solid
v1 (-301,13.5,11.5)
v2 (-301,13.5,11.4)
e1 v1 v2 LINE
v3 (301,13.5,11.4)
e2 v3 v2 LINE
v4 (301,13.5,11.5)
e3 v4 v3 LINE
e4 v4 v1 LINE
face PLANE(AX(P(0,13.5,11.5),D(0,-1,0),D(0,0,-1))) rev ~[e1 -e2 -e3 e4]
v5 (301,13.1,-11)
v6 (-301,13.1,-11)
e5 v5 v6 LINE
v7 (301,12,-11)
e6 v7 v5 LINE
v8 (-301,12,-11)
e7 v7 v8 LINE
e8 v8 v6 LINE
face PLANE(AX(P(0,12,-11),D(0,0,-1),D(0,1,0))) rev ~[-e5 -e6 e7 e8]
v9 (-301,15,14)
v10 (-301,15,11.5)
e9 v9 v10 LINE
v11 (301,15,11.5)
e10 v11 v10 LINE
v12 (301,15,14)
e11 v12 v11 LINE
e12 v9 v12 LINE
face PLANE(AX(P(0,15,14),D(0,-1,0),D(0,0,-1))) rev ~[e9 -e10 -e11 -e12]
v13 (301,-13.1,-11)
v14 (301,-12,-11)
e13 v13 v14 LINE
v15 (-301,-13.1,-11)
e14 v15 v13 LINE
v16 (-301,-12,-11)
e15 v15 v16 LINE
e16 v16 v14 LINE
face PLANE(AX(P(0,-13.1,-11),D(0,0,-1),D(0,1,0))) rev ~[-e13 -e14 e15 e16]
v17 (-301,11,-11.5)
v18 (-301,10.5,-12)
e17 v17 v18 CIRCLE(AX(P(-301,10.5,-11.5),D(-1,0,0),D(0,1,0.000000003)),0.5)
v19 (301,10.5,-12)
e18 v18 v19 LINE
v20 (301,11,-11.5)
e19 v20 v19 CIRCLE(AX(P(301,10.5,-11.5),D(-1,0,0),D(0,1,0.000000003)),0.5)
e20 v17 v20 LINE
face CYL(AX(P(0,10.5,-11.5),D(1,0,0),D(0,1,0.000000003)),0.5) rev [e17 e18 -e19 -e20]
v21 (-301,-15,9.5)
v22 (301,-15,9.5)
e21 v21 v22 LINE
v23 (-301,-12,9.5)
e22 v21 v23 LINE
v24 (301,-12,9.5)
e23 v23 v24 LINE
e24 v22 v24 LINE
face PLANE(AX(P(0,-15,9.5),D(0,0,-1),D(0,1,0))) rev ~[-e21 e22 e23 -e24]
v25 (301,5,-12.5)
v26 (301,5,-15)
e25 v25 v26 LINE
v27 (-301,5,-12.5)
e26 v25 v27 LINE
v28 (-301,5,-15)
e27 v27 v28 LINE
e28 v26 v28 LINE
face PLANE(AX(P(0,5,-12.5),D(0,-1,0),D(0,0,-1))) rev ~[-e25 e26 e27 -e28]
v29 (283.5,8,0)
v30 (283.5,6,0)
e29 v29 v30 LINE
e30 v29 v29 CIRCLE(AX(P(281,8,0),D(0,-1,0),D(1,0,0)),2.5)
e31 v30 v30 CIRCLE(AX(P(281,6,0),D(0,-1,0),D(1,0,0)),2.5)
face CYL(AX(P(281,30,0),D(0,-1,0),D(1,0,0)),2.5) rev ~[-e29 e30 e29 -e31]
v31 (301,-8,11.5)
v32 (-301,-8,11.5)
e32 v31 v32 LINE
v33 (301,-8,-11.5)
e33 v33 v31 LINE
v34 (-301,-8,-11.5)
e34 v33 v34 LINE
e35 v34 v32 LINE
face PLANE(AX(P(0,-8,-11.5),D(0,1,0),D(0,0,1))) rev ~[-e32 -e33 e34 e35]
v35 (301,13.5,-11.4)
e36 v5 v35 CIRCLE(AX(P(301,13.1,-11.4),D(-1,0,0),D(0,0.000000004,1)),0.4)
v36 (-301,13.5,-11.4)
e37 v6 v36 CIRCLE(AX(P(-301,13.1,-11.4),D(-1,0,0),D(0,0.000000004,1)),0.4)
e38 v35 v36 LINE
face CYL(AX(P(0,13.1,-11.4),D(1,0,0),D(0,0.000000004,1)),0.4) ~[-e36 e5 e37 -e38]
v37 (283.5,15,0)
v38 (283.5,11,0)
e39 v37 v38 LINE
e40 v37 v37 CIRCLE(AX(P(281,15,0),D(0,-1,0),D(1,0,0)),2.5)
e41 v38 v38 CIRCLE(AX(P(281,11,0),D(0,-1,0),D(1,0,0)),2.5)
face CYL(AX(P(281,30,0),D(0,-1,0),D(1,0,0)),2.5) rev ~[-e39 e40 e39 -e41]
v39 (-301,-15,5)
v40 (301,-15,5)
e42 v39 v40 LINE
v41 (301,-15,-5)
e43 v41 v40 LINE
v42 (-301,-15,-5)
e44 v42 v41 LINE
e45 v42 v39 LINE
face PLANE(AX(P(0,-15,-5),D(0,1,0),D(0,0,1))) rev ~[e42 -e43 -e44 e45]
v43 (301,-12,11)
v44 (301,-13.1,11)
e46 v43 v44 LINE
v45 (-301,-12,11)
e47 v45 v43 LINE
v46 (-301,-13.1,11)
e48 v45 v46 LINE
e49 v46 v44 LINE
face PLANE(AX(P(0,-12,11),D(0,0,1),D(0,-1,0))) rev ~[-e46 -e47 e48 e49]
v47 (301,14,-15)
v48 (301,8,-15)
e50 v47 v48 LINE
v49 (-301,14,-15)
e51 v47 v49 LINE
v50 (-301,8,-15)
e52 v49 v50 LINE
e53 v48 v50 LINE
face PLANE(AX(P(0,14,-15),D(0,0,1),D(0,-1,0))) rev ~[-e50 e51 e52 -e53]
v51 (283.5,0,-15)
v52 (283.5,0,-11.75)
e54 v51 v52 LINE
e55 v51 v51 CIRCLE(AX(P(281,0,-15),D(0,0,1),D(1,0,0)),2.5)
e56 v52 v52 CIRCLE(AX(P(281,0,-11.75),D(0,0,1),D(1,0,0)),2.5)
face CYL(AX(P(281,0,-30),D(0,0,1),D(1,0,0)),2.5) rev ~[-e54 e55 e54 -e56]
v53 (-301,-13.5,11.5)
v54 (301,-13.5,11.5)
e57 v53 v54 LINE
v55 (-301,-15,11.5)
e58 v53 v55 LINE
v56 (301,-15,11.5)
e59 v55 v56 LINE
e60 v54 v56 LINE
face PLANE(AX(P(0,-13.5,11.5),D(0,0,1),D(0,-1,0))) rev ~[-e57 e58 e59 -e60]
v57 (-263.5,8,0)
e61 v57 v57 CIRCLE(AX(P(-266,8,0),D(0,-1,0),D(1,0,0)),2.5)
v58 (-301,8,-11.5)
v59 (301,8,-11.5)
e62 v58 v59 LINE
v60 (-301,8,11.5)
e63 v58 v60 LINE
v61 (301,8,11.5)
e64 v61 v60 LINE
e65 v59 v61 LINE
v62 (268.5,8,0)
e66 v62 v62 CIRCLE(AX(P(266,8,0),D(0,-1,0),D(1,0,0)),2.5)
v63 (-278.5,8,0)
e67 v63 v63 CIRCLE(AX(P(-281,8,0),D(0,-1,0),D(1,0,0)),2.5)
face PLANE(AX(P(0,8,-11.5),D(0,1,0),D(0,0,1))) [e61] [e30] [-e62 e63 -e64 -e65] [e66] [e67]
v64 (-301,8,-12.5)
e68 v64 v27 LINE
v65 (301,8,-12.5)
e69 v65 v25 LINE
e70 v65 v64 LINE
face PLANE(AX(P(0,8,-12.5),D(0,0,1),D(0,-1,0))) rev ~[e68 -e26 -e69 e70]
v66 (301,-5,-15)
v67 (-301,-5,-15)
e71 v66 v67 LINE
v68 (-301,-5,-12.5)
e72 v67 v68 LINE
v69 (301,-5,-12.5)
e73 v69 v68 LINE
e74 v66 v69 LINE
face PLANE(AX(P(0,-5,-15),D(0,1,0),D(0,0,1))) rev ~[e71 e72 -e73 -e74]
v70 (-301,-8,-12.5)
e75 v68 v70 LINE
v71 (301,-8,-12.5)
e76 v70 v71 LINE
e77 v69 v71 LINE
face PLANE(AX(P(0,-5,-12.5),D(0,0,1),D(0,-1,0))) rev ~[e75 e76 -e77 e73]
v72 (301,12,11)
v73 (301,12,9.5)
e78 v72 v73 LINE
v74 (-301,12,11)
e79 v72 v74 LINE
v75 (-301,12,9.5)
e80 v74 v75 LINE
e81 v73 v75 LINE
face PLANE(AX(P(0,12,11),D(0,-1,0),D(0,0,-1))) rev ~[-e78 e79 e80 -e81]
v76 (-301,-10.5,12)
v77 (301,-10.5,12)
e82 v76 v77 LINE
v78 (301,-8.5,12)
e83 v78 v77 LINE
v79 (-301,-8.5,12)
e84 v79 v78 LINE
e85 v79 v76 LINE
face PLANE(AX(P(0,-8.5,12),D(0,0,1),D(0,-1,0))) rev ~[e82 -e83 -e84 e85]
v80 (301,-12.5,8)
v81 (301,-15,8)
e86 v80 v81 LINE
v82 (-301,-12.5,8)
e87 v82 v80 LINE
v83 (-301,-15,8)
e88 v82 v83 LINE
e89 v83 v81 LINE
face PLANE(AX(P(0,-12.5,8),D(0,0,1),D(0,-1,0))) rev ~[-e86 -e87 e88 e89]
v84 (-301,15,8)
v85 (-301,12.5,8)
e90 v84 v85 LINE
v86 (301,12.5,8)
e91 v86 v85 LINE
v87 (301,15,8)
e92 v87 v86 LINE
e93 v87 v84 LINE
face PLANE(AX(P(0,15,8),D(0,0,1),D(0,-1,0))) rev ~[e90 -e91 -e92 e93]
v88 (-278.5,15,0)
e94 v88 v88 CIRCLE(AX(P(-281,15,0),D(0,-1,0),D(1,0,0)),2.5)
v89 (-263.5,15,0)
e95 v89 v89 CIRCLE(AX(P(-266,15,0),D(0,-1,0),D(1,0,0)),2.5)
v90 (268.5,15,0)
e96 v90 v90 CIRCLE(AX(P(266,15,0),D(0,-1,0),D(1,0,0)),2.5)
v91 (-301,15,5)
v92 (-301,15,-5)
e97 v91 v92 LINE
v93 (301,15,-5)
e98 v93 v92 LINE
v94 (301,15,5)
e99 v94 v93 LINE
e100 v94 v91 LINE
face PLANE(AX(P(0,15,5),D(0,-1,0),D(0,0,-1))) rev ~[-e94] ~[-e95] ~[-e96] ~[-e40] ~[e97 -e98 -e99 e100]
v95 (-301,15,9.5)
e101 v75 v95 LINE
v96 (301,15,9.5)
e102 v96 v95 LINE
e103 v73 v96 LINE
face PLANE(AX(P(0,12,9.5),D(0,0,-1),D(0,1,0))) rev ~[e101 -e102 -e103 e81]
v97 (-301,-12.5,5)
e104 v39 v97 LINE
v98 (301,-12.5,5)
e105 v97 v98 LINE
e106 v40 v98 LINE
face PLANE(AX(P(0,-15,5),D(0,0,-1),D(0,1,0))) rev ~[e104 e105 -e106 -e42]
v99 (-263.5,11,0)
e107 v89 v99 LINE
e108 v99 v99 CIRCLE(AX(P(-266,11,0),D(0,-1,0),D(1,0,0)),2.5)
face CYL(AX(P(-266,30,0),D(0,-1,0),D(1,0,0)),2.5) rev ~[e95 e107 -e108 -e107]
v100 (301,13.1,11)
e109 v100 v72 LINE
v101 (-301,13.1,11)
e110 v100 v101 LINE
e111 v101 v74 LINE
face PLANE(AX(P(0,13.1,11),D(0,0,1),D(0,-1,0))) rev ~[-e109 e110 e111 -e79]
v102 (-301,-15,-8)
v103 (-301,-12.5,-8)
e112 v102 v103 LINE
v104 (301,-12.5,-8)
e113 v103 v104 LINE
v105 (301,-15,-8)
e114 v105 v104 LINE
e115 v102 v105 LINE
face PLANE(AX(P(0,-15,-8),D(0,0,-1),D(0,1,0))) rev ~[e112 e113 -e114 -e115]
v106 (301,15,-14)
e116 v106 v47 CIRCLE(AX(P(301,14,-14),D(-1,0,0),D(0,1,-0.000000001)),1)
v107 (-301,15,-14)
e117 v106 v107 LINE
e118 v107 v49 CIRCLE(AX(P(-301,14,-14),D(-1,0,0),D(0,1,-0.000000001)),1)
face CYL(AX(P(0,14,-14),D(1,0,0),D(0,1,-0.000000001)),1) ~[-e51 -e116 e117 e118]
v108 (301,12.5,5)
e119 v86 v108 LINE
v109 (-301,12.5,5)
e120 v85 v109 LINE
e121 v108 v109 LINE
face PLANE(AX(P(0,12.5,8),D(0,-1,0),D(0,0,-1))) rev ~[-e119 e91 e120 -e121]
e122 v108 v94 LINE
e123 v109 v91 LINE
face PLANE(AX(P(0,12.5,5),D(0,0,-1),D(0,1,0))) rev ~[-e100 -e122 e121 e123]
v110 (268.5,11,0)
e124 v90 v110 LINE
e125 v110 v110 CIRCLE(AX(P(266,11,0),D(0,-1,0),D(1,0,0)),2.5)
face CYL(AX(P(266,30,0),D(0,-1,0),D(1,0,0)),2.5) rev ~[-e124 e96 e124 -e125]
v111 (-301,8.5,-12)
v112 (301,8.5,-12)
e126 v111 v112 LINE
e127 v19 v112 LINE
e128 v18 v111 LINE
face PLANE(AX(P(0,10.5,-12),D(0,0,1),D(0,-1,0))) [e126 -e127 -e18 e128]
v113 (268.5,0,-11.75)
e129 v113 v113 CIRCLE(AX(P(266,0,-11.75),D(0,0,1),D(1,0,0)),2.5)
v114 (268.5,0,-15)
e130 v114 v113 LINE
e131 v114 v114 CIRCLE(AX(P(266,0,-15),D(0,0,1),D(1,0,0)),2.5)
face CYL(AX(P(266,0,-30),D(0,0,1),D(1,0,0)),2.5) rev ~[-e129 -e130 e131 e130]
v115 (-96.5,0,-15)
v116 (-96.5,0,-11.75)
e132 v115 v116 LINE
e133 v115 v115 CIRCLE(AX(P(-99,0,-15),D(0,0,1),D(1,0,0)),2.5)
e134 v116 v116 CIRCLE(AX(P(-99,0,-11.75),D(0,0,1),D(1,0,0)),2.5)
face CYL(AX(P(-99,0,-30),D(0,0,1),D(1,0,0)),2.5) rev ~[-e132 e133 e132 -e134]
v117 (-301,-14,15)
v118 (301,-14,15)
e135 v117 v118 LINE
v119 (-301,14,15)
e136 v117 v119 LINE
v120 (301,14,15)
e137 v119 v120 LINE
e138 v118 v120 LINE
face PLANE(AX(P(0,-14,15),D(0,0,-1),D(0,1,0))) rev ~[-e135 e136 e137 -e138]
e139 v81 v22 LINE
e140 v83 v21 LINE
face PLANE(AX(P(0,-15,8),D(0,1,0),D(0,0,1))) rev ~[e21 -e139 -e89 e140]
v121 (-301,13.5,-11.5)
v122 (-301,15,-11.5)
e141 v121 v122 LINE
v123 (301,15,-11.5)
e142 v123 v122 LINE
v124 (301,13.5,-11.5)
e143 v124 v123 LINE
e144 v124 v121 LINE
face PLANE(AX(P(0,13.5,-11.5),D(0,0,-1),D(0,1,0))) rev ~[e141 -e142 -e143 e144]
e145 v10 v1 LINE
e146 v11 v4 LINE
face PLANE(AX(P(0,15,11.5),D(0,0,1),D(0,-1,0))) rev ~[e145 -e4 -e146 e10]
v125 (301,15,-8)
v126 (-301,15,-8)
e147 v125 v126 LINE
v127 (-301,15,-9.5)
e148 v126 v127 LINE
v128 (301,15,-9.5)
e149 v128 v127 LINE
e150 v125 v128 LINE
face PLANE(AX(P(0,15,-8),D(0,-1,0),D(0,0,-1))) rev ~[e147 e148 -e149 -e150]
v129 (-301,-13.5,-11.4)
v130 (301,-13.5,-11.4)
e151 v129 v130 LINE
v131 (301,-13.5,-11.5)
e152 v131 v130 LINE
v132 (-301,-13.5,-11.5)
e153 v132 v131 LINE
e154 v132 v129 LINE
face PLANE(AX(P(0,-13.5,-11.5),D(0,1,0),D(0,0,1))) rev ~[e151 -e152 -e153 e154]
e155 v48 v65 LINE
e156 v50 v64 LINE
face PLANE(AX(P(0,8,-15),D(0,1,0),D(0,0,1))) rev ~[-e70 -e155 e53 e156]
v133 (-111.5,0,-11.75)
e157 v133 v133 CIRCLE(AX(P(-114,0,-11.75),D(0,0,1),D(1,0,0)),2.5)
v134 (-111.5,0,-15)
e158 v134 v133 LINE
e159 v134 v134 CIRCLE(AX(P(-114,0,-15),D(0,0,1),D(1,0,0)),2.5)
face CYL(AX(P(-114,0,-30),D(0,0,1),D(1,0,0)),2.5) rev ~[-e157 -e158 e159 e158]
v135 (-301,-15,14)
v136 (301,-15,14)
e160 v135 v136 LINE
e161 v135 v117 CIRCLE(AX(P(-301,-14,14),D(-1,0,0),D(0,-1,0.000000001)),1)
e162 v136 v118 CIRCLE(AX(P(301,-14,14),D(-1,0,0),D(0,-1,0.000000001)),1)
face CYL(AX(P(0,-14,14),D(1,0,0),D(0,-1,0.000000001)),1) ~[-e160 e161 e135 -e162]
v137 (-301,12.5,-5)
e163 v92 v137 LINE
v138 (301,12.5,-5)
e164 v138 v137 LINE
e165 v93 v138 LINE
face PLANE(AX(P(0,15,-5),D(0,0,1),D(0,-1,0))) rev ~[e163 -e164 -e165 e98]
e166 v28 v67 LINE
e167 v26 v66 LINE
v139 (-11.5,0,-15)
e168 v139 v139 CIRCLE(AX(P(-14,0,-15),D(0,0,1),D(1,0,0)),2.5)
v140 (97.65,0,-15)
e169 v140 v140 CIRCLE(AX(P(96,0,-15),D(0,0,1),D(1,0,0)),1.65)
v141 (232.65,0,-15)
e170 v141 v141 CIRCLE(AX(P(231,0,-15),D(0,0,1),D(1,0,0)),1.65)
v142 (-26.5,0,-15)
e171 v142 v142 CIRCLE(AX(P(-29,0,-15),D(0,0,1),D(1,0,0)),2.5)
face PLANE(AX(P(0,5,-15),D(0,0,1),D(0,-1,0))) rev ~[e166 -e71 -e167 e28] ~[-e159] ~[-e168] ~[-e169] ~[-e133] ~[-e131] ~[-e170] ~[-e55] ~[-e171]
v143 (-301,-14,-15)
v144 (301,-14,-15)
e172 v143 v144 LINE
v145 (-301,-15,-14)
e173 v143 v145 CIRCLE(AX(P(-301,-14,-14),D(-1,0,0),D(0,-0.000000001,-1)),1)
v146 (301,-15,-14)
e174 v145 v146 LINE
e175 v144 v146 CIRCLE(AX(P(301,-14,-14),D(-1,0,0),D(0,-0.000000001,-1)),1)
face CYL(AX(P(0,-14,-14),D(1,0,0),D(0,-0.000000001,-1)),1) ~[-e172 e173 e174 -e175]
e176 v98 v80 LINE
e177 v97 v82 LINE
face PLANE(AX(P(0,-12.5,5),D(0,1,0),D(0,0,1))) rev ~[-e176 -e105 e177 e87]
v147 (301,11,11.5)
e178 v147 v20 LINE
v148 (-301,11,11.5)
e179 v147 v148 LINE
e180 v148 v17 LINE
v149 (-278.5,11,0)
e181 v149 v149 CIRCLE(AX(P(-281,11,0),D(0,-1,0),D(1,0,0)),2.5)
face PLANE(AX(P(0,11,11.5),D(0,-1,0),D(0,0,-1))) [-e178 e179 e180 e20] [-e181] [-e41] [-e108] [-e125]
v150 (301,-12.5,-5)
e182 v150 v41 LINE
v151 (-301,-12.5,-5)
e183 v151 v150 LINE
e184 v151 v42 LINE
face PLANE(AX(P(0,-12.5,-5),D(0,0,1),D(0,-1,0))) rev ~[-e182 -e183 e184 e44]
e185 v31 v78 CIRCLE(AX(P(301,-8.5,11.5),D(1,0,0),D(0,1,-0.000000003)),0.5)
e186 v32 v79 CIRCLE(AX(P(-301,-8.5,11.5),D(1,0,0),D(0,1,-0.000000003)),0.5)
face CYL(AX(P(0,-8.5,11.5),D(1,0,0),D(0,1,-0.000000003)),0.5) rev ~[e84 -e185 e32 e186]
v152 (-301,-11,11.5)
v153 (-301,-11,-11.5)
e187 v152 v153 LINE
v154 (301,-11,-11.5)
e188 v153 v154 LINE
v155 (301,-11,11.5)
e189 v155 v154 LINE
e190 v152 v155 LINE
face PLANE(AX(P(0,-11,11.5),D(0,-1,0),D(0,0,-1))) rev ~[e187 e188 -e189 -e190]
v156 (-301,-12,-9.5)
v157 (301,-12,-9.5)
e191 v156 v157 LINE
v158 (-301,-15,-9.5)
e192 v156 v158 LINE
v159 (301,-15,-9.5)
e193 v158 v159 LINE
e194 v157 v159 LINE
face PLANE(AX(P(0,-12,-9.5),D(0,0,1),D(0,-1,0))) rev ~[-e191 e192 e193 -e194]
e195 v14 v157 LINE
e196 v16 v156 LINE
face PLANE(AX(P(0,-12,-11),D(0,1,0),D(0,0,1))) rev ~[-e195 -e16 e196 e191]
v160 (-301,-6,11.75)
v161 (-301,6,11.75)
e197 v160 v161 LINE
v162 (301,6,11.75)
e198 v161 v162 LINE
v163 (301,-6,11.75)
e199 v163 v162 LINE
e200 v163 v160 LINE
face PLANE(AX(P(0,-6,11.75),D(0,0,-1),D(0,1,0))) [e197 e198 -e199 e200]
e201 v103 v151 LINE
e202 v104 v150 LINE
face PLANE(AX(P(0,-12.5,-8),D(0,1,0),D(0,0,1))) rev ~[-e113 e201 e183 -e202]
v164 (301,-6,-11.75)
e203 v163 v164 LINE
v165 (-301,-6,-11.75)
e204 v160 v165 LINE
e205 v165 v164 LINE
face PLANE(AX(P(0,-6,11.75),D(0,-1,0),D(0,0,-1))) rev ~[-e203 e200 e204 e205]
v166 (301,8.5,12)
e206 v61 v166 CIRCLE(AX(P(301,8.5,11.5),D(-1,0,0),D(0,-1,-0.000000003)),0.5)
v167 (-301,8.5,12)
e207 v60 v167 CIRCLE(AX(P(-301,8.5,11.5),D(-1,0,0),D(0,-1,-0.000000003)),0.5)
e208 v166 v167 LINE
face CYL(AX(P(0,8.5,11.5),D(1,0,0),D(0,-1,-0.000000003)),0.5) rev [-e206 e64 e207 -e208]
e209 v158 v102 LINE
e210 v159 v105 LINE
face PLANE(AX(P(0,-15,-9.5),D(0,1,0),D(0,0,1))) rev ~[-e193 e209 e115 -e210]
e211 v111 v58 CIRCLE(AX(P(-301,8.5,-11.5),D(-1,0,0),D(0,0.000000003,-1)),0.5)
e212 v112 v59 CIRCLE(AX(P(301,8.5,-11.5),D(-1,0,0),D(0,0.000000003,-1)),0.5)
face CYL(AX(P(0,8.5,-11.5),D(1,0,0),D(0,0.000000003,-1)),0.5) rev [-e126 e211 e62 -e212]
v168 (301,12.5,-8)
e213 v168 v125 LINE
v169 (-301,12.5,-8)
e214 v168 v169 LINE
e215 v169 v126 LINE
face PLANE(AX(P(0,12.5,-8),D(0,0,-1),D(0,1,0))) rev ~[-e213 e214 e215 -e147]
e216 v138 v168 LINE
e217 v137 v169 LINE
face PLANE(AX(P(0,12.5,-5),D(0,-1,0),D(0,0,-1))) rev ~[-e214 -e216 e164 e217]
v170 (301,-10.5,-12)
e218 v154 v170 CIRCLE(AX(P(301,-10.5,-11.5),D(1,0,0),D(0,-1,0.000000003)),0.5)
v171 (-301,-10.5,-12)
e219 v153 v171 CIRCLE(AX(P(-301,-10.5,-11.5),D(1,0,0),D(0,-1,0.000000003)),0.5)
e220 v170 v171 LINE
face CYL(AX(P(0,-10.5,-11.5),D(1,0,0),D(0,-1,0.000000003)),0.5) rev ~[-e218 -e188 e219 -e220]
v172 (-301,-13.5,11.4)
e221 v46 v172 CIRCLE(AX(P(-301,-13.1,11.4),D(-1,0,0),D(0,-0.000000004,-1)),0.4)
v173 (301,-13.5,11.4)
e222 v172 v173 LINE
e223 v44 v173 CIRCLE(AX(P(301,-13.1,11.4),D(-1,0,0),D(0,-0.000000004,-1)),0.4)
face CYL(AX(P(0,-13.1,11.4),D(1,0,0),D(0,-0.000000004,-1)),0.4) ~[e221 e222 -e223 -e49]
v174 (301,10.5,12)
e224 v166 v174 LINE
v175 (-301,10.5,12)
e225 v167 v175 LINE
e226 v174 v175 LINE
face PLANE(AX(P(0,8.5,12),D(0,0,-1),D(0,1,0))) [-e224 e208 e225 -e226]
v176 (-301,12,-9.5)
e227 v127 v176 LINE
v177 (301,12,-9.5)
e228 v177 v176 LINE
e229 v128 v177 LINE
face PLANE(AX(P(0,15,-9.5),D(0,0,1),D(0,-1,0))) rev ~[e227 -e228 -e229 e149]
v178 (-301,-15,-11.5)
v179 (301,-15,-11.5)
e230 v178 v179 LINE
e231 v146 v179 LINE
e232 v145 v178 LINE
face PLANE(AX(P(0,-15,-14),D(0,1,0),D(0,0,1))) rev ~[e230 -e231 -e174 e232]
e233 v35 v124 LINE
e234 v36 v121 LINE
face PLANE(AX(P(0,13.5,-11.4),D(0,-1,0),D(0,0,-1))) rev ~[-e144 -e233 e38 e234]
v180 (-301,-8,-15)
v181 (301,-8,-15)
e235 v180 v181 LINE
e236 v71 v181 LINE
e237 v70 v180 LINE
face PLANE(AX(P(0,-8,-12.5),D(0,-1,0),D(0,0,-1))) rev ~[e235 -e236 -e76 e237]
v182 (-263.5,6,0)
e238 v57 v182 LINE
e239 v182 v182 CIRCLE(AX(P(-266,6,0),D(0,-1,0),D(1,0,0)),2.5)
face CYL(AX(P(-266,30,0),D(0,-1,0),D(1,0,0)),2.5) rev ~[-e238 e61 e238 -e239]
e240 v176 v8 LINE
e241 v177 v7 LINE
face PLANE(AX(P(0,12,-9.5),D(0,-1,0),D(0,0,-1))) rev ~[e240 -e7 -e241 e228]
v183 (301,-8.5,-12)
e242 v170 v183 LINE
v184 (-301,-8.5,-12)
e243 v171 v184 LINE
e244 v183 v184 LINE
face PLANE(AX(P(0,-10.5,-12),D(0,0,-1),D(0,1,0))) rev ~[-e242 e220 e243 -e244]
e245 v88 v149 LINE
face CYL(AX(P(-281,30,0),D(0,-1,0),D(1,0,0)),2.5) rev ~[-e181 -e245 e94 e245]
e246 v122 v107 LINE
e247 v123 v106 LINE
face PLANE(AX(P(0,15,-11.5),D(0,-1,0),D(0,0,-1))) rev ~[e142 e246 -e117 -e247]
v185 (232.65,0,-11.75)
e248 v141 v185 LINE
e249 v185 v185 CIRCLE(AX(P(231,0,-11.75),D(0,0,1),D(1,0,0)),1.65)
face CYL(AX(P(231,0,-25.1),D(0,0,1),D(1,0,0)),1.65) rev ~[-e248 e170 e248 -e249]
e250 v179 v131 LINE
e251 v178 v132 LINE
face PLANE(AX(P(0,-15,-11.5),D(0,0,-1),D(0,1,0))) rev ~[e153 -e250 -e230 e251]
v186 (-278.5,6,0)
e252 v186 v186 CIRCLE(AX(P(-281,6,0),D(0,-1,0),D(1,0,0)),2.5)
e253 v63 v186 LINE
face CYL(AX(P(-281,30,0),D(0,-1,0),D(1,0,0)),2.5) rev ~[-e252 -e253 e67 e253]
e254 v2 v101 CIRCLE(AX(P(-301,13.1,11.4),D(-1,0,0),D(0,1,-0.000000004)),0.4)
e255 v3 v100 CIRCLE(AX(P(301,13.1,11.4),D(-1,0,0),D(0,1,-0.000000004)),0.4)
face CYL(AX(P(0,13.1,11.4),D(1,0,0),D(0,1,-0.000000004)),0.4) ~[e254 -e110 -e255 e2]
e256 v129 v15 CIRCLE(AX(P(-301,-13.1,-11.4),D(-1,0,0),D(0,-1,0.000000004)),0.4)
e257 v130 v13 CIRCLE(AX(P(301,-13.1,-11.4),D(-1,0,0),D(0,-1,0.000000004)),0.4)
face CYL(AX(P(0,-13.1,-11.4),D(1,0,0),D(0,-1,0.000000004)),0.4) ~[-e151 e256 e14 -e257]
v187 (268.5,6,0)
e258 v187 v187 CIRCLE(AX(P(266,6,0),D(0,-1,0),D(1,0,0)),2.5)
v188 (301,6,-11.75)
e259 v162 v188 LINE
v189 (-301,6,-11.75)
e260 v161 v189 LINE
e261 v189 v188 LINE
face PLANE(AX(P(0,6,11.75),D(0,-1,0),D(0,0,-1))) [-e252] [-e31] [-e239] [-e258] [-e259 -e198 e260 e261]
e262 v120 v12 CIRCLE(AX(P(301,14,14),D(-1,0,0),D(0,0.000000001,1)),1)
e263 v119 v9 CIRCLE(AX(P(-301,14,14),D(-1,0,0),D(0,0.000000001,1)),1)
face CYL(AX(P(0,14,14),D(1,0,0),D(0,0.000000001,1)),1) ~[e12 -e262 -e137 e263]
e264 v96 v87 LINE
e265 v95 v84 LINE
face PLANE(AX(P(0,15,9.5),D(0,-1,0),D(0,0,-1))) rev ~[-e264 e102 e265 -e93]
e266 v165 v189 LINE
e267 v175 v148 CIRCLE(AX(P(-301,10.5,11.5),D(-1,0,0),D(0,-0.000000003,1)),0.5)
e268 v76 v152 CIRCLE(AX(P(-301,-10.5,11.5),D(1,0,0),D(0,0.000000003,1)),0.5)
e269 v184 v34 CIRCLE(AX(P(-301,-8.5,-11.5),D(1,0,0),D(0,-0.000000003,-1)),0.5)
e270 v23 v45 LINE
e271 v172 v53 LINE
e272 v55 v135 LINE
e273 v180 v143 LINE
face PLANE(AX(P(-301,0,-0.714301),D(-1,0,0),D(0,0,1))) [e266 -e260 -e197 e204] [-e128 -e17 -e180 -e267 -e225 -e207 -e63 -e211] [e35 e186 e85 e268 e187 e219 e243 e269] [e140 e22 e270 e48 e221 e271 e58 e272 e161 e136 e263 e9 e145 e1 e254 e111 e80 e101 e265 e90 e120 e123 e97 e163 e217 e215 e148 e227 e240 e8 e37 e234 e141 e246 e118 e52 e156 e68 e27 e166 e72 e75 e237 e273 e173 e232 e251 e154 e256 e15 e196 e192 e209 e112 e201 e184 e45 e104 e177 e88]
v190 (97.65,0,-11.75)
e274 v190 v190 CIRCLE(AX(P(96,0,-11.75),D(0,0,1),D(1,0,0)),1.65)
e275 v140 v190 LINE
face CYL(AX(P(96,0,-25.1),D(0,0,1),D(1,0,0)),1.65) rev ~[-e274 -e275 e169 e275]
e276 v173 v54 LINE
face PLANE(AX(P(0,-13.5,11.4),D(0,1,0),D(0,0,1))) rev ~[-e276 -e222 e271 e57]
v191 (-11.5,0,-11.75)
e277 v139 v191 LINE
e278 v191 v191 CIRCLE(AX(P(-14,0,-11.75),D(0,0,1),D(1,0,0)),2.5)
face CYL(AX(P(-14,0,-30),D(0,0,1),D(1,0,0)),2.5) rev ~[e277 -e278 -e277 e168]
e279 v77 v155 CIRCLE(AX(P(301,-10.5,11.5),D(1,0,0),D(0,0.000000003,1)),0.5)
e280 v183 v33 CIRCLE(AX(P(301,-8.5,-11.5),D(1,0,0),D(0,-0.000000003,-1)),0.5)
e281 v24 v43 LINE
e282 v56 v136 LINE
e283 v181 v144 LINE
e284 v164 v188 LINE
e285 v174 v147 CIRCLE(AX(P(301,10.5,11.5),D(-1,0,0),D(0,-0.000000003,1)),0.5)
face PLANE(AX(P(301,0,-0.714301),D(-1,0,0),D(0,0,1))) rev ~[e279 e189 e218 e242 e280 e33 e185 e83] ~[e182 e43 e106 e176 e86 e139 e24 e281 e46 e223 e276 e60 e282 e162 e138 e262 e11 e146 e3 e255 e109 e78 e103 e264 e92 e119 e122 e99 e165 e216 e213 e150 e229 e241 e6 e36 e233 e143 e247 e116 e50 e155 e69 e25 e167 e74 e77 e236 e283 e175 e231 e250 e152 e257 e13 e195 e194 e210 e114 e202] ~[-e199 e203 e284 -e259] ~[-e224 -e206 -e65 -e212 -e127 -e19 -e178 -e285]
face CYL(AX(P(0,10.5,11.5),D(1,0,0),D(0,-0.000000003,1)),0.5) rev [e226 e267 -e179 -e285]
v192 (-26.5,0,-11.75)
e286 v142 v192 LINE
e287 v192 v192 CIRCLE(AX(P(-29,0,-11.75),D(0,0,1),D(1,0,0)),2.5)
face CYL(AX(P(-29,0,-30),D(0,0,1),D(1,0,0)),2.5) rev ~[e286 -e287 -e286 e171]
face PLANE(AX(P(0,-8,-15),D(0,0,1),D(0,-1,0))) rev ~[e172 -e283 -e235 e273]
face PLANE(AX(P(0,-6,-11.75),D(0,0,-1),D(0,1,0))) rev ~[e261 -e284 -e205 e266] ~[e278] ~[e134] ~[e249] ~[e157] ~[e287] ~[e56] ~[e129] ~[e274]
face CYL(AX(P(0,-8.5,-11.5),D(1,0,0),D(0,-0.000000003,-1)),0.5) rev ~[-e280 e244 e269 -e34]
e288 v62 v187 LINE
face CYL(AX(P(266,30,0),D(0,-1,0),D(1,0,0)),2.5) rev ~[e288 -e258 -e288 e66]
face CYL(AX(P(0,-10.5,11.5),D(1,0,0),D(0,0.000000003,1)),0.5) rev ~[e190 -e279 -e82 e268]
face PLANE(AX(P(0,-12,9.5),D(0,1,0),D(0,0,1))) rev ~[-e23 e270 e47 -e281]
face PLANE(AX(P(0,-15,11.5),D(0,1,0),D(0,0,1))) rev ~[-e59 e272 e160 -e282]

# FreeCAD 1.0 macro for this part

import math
import FreeCAD as App
import Part
import Sketcher

V = App.Vector


def add_polygon(sketch, points):
    """Adds a closed chain of lines whose ends are joined by coincident constraints."""
    first, n = sketch.GeometryCount, len(points)
    for a, b in zip(points, points[1:] + points[:1]):
        sketch.addGeometry(Part.LineSegment(App.Vector(*a, 0), App.Vector(*b, 0)), False)
    for i in range(n):
        sketch.addConstraint(Sketcher.Constraint("Coincident", first + i, 2, first + (i + 1) % n, 1))

doc = App.newDocument("Part")
body = doc.addObject("PartDesign::Body", "Body")

# Sketch on YZ plane
sketch1 = body.newObject("Sketcher::SketchObject", "Sketch")
sketch1.AttachmentSupport = (doc.getObject("YZ_Plane"), [""])
sketch1.MapMode = "FlatFace"
sketch1.addGeometry(Part.LineSegment(V(15, 11.5, 0), V(15, 14, 0)), False)  # 0
sketch1.addGeometry(Part.ArcOfCircle(Part.Circle(V(14, 14, 0), V(0, 0, 1), 1), math.radians(0), math.radians(90)), False)  # 1
sketch1.addGeometry(Part.LineSegment(V(14, 15, 0), V(-14, 15, 0)), False)  # 2
sketch1.addGeometry(Part.ArcOfCircle(Part.Circle(V(-14, 14, 0), V(0, 0, 1), 1), math.radians(90), math.radians(180)), False)  # 3
sketch1.addGeometry(Part.LineSegment(V(-15, 14, 0), V(-15, 11.5, 0)), False)  # 4
sketch1.addGeometry(Part.LineSegment(V(-15, 11.5, 0), V(-13.5, 11.5, 0)), False)  # 5
sketch1.addGeometry(Part.LineSegment(V(-13.5, 11.5, 0), V(-13.5, 11.4, 0)), False)  # 6
sketch1.addGeometry(Part.ArcOfCircle(Part.Circle(V(-13.1, 11.4, 0), V(0, 0, 1), 0.4), math.radians(-180), math.radians(-90)), False)  # 7
sketch1.addGeometry(Part.LineSegment(V(-13.1, 11, 0), V(-12, 11, 0)), False)  # 8
sketch1.addGeometry(Part.LineSegment(V(-12, 11, 0), V(-12, 9.5, 0)), False)  # 9
sketch1.addGeometry(Part.LineSegment(V(-12, 9.5, 0), V(-15, 9.5, 0)), False)  # 10
sketch1.addGeometry(Part.LineSegment(V(-15, 9.5, 0), V(-15, 8, 0)), False)  # 11
sketch1.addGeometry(Part.LineSegment(V(-15, 8, 0), V(-12.5, 8, 0)), False)  # 12
sketch1.addGeometry(Part.LineSegment(V(-12.5, 8, 0), V(-12.5, 5, 0)), False)  # 13
sketch1.addGeometry(Part.LineSegment(V(-12.5, 5, 0), V(-15, 5, 0)), False)  # 14
sketch1.addGeometry(Part.LineSegment(V(-15, 5, 0), V(-15, -5, 0)), False)  # 15
sketch1.addGeometry(Part.LineSegment(V(-15, -5, 0), V(-12.5, -5, 0)), False)  # 16
sketch1.addGeometry(Part.LineSegment(V(-12.5, -5, 0), V(-12.5, -8, 0)), False)  # 17
sketch1.addGeometry(Part.LineSegment(V(-12.5, -8, 0), V(-15, -8, 0)), False)  # 18
sketch1.addGeometry(Part.LineSegment(V(-15, -8, 0), V(-15, -9.5, 0)), False)  # 19
sketch1.addGeometry(Part.LineSegment(V(-15, -9.5, 0), V(-12, -9.5, 0)), False)  # 20
sketch1.addGeometry(Part.LineSegment(V(-12, -9.5, 0), V(-12, -11, 0)), False)  # 21
sketch1.addGeometry(Part.LineSegment(V(-12, -11, 0), V(-13.1, -11, 0)), False)  # 22
sketch1.addGeometry(Part.ArcOfCircle(Part.Circle(V(-13.1, -11.4, 0), V(0, 0, 1), 0.4), math.radians(90), math.radians(180)), False)  # 23
sketch1.addGeometry(Part.LineSegment(V(-13.5, -11.4, 0), V(-13.5, -11.5, 0)), False)  # 24
sketch1.addGeometry(Part.LineSegment(V(-13.5, -11.5, 0), V(-15, -11.5, 0)), False)  # 25
sketch1.addGeometry(Part.LineSegment(V(-15, -11.5, 0), V(-15, -14, 0)), False)  # 26
sketch1.addGeometry(Part.ArcOfCircle(Part.Circle(V(-14, -14, 0), V(0, 0, 1), 1), math.radians(-180), math.radians(-90)), False)  # 27
sketch1.addGeometry(Part.LineSegment(V(-14, -15, 0), V(-8, -15, 0)), False)  # 28
sketch1.addGeometry(Part.LineSegment(V(-8, -15, 0), V(-8, -12.5, 0)), False)  # 29
sketch1.addGeometry(Part.LineSegment(V(-8, -12.5, 0), V(-5, -12.5, 0)), False)  # 30
sketch1.addGeometry(Part.LineSegment(V(-5, -12.5, 0), V(-5, -15, 0)), False)  # 31
sketch1.addGeometry(Part.LineSegment(V(-5, -15, 0), V(5, -15, 0)), False)  # 32
sketch1.addGeometry(Part.LineSegment(V(5, -15, 0), V(5, -12.5, 0)), False)  # 33
sketch1.addGeometry(Part.LineSegment(V(5, -12.5, 0), V(8, -12.5, 0)), False)  # 34
sketch1.addGeometry(Part.LineSegment(V(8, -12.5, 0), V(8, -15, 0)), False)  # 35
sketch1.addGeometry(Part.LineSegment(V(8, -15, 0), V(14, -15, 0)), False)  # 36
sketch1.addGeometry(Part.ArcOfCircle(Part.Circle(V(14, -14, 0), V(0, 0, 1), 1), math.radians(-90), math.radians(0)), False)  # 37
sketch1.addGeometry(Part.LineSegment(V(15, -14, 0), V(15, -11.5, 0)), False)  # 38
sketch1.addGeometry(Part.LineSegment(V(15, -11.5, 0), V(13.5, -11.5, 0)), False)  # 39
sketch1.addGeometry(Part.LineSegment(V(13.5, -11.5, 0), V(13.5, -11.4, 0)), False)  # 40
sketch1.addGeometry(Part.ArcOfCircle(Part.Circle(V(13.1, -11.4, 0), V(0, 0, 1), 0.4), math.radians(0), math.radians(90)), False)  # 41
sketch1.addGeometry(Part.LineSegment(V(13.1, -11, 0), V(12, -11, 0)), False)  # 42
sketch1.addGeometry(Part.LineSegment(V(12, -11, 0), V(12, -9.5, 0)), False)  # 43
sketch1.addGeometry(Part.LineSegment(V(12, -9.5, 0), V(15, -9.5, 0)), False)  # 44
sketch1.addGeometry(Part.LineSegment(V(15, -9.5, 0), V(15, -8, 0)), False)  # 45
sketch1.addGeometry(Part.LineSegment(V(15, -8, 0), V(12.5, -8, 0)), False)  # 46
sketch1.addGeometry(Part.LineSegment(V(12.5, -8, 0), V(12.5, -5, 0)), False)  # 47
sketch1.addGeometry(Part.LineSegment(V(12.5, -5, 0), V(15, -5, 0)), False)  # 48
sketch1.addGeometry(Part.LineSegment(V(15, -5, 0), V(15, 5, 0)), False)  # 49
sketch1.addGeometry(Part.LineSegment(V(15, 5, 0), V(12.5, 5, 0)), False)  # 50
sketch1.addGeometry(Part.LineSegment(V(12.5, 5, 0), V(12.5, 8, 0)), False)  # 51
sketch1.addGeometry(Part.LineSegment(V(12.5, 8, 0), V(15, 8, 0)), False)  # 52
sketch1.addGeometry(Part.LineSegment(V(15, 8, 0), V(15, 9.5, 0)), False)  # 53
sketch1.addGeometry(Part.LineSegment(V(15, 9.5, 0), V(12, 9.5, 0)), False)  # 54
sketch1.addGeometry(Part.LineSegment(V(12, 9.5, 0), V(12, 11, 0)), False)  # 55
sketch1.addGeometry(Part.LineSegment(V(12, 11, 0), V(13.1, 11, 0)), False)  # 56
sketch1.addGeometry(Part.ArcOfCircle(Part.Circle(V(13.1, 11.4, 0), V(0, 0, 1), 0.4), math.radians(-90), math.radians(0)), False)  # 57
sketch1.addGeometry(Part.LineSegment(V(13.5, 11.4, 0), V(13.5, 11.5, 0)), False)  # 58
sketch1.addGeometry(Part.LineSegment(V(13.5, 11.5, 0), V(15, 11.5, 0)), False)  # 59
sketch1.addGeometry(Part.ArcOfCircle(Part.Circle(V(-10.5, -11.5, 0), V(0, 0, 1), 0.5), math.radians(180), math.radians(270)), False)  # 60
sketch1.addGeometry(Part.LineSegment(V(-11, -11.5, 0), V(-11, 11.5, 0)), False)  # 61
sketch1.addGeometry(Part.ArcOfCircle(Part.Circle(V(-10.5, 11.5, 0), V(0, 0, 1), 0.5), math.radians(90), math.radians(180)), False)  # 62
sketch1.addGeometry(Part.LineSegment(V(-10.5, 12, 0), V(-8.5, 12, 0)), False)  # 63
sketch1.addGeometry(Part.ArcOfCircle(Part.Circle(V(-8.5, 11.5, 0), V(0, 0, 1), 0.5), math.radians(0), math.radians(90)), False)  # 64
sketch1.addGeometry(Part.LineSegment(V(-8, 11.5, 0), V(-8, -11.5, 0)), False)  # 65
sketch1.addGeometry(Part.ArcOfCircle(Part.Circle(V(-8.5, -11.5, 0), V(0, 0, 1), 0.5), math.radians(-90), math.radians(0)), False)  # 66
sketch1.addGeometry(Part.LineSegment(V(-8.5, -12, 0), V(-10.5, -12, 0)), False)  # 67
add_polygon(sketch1, [(-6, 11.75), (6, 11.75), (6, -11.75), (-6, -11.75)])  # lines 68-71
sketch1.addGeometry(Part.LineSegment(V(11, 11.5, 0), V(11, -11.5, 0)), False)  # 72
sketch1.addGeometry(Part.ArcOfCircle(Part.Circle(V(10.5, -11.5, 0), V(0, 0, 1), 0.5), math.radians(-90), math.radians(0)), False)  # 73
sketch1.addGeometry(Part.LineSegment(V(10.5, -12, 0), V(8.5, -12, 0)), False)  # 74
sketch1.addGeometry(Part.ArcOfCircle(Part.Circle(V(8.5, -11.5, 0), V(0, 0, 1), 0.5), math.radians(180), math.radians(270)), False)  # 75
sketch1.addGeometry(Part.LineSegment(V(8, -11.5, 0), V(8, 11.5, 0)), False)  # 76
sketch1.addGeometry(Part.ArcOfCircle(Part.Circle(V(8.5, 11.5, 0), V(0, 0, 1), 0.5), math.radians(90), math.radians(180)), False)  # 77
sketch1.addGeometry(Part.LineSegment(V(8.5, 12, 0), V(10.5, 12, 0)), False)  # 78
sketch1.addGeometry(Part.ArcOfCircle(Part.Circle(V(10.5, 11.5, 0), V(0, 0, 1), 0.5), math.radians(0), math.radians(90)), False)  # 79
sketch1.addConstraint(Sketcher.Constraint("Tangent", 0, 2, 1, 1))
sketch1.addConstraint(Sketcher.Constraint("Tangent", 1, 2, 2, 1))
sketch1.addConstraint(Sketcher.Constraint("Tangent", 2, 2, 3, 1))
sketch1.addConstraint(Sketcher.Constraint("Tangent", 3, 2, 4, 1))
sketch1.addConstraint(Sketcher.Constraint("Coincident", 4, 2, 5, 1))
sketch1.addConstraint(Sketcher.Constraint("Coincident", 5, 2, 6, 1))
sketch1.addConstraint(Sketcher.Constraint("Tangent", 6, 2, 7, 1))
sketch1.addConstraint(Sketcher.Constraint("Tangent", 7, 2, 8, 1))
sketch1.addConstraint(Sketcher.Constraint("Coincident", 8, 2, 9, 1))
sketch1.addConstraint(Sketcher.Constraint("Coincident", 9, 2, 10, 1))
sketch1.addConstraint(Sketcher.Constraint("Coincident", 10, 2, 11, 1))
sketch1.addConstraint(Sketcher.Constraint("Coincident", 11, 2, 12, 1))
sketch1.addConstraint(Sketcher.Constraint("Coincident", 12, 2, 13, 1))
sketch1.addConstraint(Sketcher.Constraint("Coincident", 13, 2, 14, 1))
sketch1.addConstraint(Sketcher.Constraint("Coincident", 14, 2, 15, 1))
sketch1.addConstraint(Sketcher.Constraint("Coincident", 15, 2, 16, 1))
sketch1.addConstraint(Sketcher.Constraint("Coincident", 16, 2, 17, 1))
sketch1.addConstraint(Sketcher.Constraint("Coincident", 17, 2, 18, 1))
sketch1.addConstraint(Sketcher.Constraint("Coincident", 18, 2, 19, 1))
sketch1.addConstraint(Sketcher.Constraint("Coincident", 19, 2, 20, 1))
sketch1.addConstraint(Sketcher.Constraint("Coincident", 20, 2, 21, 1))
sketch1.addConstraint(Sketcher.Constraint("Coincident", 21, 2, 22, 1))
sketch1.addConstraint(Sketcher.Constraint("Tangent", 22, 2, 23, 1))
sketch1.addConstraint(Sketcher.Constraint("Tangent", 23, 2, 24, 1))
sketch1.addConstraint(Sketcher.Constraint("Coincident", 24, 2, 25, 1))
sketch1.addConstraint(Sketcher.Constraint("Coincident", 25, 2, 26, 1))
sketch1.addConstraint(Sketcher.Constraint("Tangent", 26, 2, 27, 1))
sketch1.addConstraint(Sketcher.Constraint("Tangent", 27, 2, 28, 1))
sketch1.addConstraint(Sketcher.Constraint("Coincident", 28, 2, 29, 1))
sketch1.addConstraint(Sketcher.Constraint("Coincident", 29, 2, 30, 1))
sketch1.addConstraint(Sketcher.Constraint("Coincident", 30, 2, 31, 1))
sketch1.addConstraint(Sketcher.Constraint("Coincident", 31, 2, 32, 1))
sketch1.addConstraint(Sketcher.Constraint("Coincident", 32, 2, 33, 1))
sketch1.addConstraint(Sketcher.Constraint("Coincident", 33, 2, 34, 1))
sketch1.addConstraint(Sketcher.Constraint("Coincident", 34, 2, 35, 1))
sketch1.addConstraint(Sketcher.Constraint("Coincident", 35, 2, 36, 1))
sketch1.addConstraint(Sketcher.Constraint("Tangent", 36, 2, 37, 1))
sketch1.addConstraint(Sketcher.Constraint("Tangent", 37, 2, 38, 1))
sketch1.addConstraint(Sketcher.Constraint("Coincident", 38, 2, 39, 1))
sketch1.addConstraint(Sketcher.Constraint("Coincident", 39, 2, 40, 1))
sketch1.addConstraint(Sketcher.Constraint("Tangent", 40, 2, 41, 1))
sketch1.addConstraint(Sketcher.Constraint("Tangent", 41, 2, 42, 1))
sketch1.addConstraint(Sketcher.Constraint("Coincident", 42, 2, 43, 1))
sketch1.addConstraint(Sketcher.Constraint("Coincident", 43, 2, 44, 1))
sketch1.addConstraint(Sketcher.Constraint("Coincident", 44, 2, 45, 1))
sketch1.addConstraint(Sketcher.Constraint("Coincident", 45, 2, 46, 1))
sketch1.addConstraint(Sketcher.Constraint("Coincident", 46, 2, 47, 1))
sketch1.addConstraint(Sketcher.Constraint("Coincident", 47, 2, 48, 1))
sketch1.addConstraint(Sketcher.Constraint("Coincident", 48, 2, 49, 1))
sketch1.addConstraint(Sketcher.Constraint("Coincident", 49, 2, 50, 1))
sketch1.addConstraint(Sketcher.Constraint("Coincident", 50, 2, 51, 1))
sketch1.addConstraint(Sketcher.Constraint("Coincident", 51, 2, 52, 1))
sketch1.addConstraint(Sketcher.Constraint("Coincident", 52, 2, 53, 1))
sketch1.addConstraint(Sketcher.Constraint("Coincident", 53, 2, 54, 1))
sketch1.addConstraint(Sketcher.Constraint("Coincident", 54, 2, 55, 1))
sketch1.addConstraint(Sketcher.Constraint("Coincident", 55, 2, 56, 1))
sketch1.addConstraint(Sketcher.Constraint("Tangent", 56, 2, 57, 1))
sketch1.addConstraint(Sketcher.Constraint("Tangent", 57, 2, 58, 1))
sketch1.addConstraint(Sketcher.Constraint("Coincident", 58, 2, 59, 1))
sketch1.addConstraint(Sketcher.Constraint("Coincident", 59, 2, 0, 1))
sketch1.addConstraint(Sketcher.Constraint("Tangent", 60, 1, 61, 1))
sketch1.addConstraint(Sketcher.Constraint("Tangent", 61, 2, 62, 2))
sketch1.addConstraint(Sketcher.Constraint("Tangent", 62, 1, 63, 1))
sketch1.addConstraint(Sketcher.Constraint("Tangent", 63, 2, 64, 2))
sketch1.addConstraint(Sketcher.Constraint("Tangent", 64, 1, 65, 1))
sketch1.addConstraint(Sketcher.Constraint("Tangent", 65, 2, 66, 2))
sketch1.addConstraint(Sketcher.Constraint("Tangent", 66, 1, 67, 1))
sketch1.addConstraint(Sketcher.Constraint("Tangent", 67, 2, 60, 2))
sketch1.addConstraint(Sketcher.Constraint("Tangent", 72, 2, 73, 2))
sketch1.addConstraint(Sketcher.Constraint("Tangent", 73, 1, 74, 1))
sketch1.addConstraint(Sketcher.Constraint("Tangent", 74, 2, 75, 2))
sketch1.addConstraint(Sketcher.Constraint("Tangent", 75, 1, 76, 1))
sketch1.addConstraint(Sketcher.Constraint("Tangent", 76, 2, 77, 2))
sketch1.addConstraint(Sketcher.Constraint("Tangent", 77, 1, 78, 1))
sketch1.addConstraint(Sketcher.Constraint("Tangent", 78, 2, 79, 2))
sketch1.addConstraint(Sketcher.Constraint("Tangent", 79, 1, 72, 1))
sketch1.addConstraint(Sketcher.Constraint("Vertical", 0))
sketch1.addConstraint(Sketcher.Constraint("Horizontal", 2))
sketch1.addConstraint(Sketcher.Constraint("Vertical", 4))
sketch1.addConstraint(Sketcher.Constraint("Horizontal", 5))
sketch1.addConstraint(Sketcher.Constraint("Vertical", 6))
sketch1.addConstraint(Sketcher.Constraint("Horizontal", 8))
sketch1.addConstraint(Sketcher.Constraint("Vertical", 9))
sketch1.addConstraint(Sketcher.Constraint("Horizontal", 10))
sketch1.addConstraint(Sketcher.Constraint("Vertical", 11))
sketch1.addConstraint(Sketcher.Constraint("Horizontal", 12))
sketch1.addConstraint(Sketcher.Constraint("Vertical", 13))
sketch1.addConstraint(Sketcher.Constraint("Horizontal", 14))
sketch1.addConstraint(Sketcher.Constraint("Vertical", 15))
sketch1.addConstraint(Sketcher.Constraint("Horizontal", 16))
sketch1.addConstraint(Sketcher.Constraint("Vertical", 17))
sketch1.addConstraint(Sketcher.Constraint("Horizontal", 18))
sketch1.addConstraint(Sketcher.Constraint("Vertical", 19))
sketch1.addConstraint(Sketcher.Constraint("Horizontal", 20))
sketch1.addConstraint(Sketcher.Constraint("Vertical", 21))
sketch1.addConstraint(Sketcher.Constraint("Horizontal", 22))
sketch1.addConstraint(Sketcher.Constraint("Vertical", 24))
sketch1.addConstraint(Sketcher.Constraint("Horizontal", 25))
sketch1.addConstraint(Sketcher.Constraint("Vertical", 26))
sketch1.addConstraint(Sketcher.Constraint("Horizontal", 28))
sketch1.addConstraint(Sketcher.Constraint("Vertical", 29))
sketch1.addConstraint(Sketcher.Constraint("Horizontal", 30))
sketch1.addConstraint(Sketcher.Constraint("Vertical", 31))
sketch1.addConstraint(Sketcher.Constraint("Horizontal", 32))
sketch1.addConstraint(Sketcher.Constraint("Vertical", 33))
sketch1.addConstraint(Sketcher.Constraint("Horizontal", 34))
sketch1.addConstraint(Sketcher.Constraint("Vertical", 35))
sketch1.addConstraint(Sketcher.Constraint("Horizontal", 36))
sketch1.addConstraint(Sketcher.Constraint("Vertical", 38))
sketch1.addConstraint(Sketcher.Constraint("Horizontal", 39))
sketch1.addConstraint(Sketcher.Constraint("Vertical", 40))
sketch1.addConstraint(Sketcher.Constraint("Horizontal", 42))
sketch1.addConstraint(Sketcher.Constraint("Vertical", 43))
sketch1.addConstraint(Sketcher.Constraint("Horizontal", 44))
sketch1.addConstraint(Sketcher.Constraint("Vertical", 45))
sketch1.addConstraint(Sketcher.Constraint("Horizontal", 46))
sketch1.addConstraint(Sketcher.Constraint("Vertical", 47))
sketch1.addConstraint(Sketcher.Constraint("Horizontal", 48))
sketch1.addConstraint(Sketcher.Constraint("Vertical", 49))
sketch1.addConstraint(Sketcher.Constraint("Horizontal", 50))
sketch1.addConstraint(Sketcher.Constraint("Vertical", 51))
sketch1.addConstraint(Sketcher.Constraint("Horizontal", 52))
sketch1.addConstraint(Sketcher.Constraint("Vertical", 53))
sketch1.addConstraint(Sketcher.Constraint("Horizontal", 54))
sketch1.addConstraint(Sketcher.Constraint("Vertical", 55))
sketch1.addConstraint(Sketcher.Constraint("Horizontal", 56))
sketch1.addConstraint(Sketcher.Constraint("Vertical", 58))
sketch1.addConstraint(Sketcher.Constraint("Horizontal", 59))
sketch1.addConstraint(Sketcher.Constraint("Vertical", 61))
sketch1.addConstraint(Sketcher.Constraint("Horizontal", 63))
sketch1.addConstraint(Sketcher.Constraint("Vertical", 65))
sketch1.addConstraint(Sketcher.Constraint("Horizontal", 67))
sketch1.addConstraint(Sketcher.Constraint("Horizontal", 68))
sketch1.addConstraint(Sketcher.Constraint("Vertical", 69))
sketch1.addConstraint(Sketcher.Constraint("Horizontal", 70))
sketch1.addConstraint(Sketcher.Constraint("Vertical", 71))
sketch1.addConstraint(Sketcher.Constraint("Vertical", 72))
sketch1.addConstraint(Sketcher.Constraint("Horizontal", 74))
sketch1.addConstraint(Sketcher.Constraint("Vertical", 76))
sketch1.addConstraint(Sketcher.Constraint("Horizontal", 78))
sketch1.addConstraint(Sketcher.Constraint("Equal", 1, 3))
sketch1.addConstraint(Sketcher.Constraint("Equal", 7, 23))
sketch1.addConstraint(Sketcher.Constraint("Equal", 3, 27))
sketch1.addConstraint(Sketcher.Constraint("Equal", 27, 37))
sketch1.addConstraint(Sketcher.Constraint("Equal", 23, 41))
sketch1.addConstraint(Sketcher.Constraint("Equal", 41, 57))
sketch1.addConstraint(Sketcher.Constraint("Equal", 60, 62))
sketch1.addConstraint(Sketcher.Constraint("Equal", 62, 64))
sketch1.addConstraint(Sketcher.Constraint("Equal", 64, 66))
sketch1.addConstraint(Sketcher.Constraint("Equal", 66, 73))
sketch1.addConstraint(Sketcher.Constraint("Equal", 73, 75))
sketch1.addConstraint(Sketcher.Constraint("Equal", 75, 77))
sketch1.addConstraint(Sketcher.Constraint("Equal", 77, 79))
sketch1.addConstraint(Sketcher.Constraint("Symmetric", 1, 3, 27, 3, -1, 1))
sketch1.addConstraint(Sketcher.Constraint("Symmetric", 3, 3, 37, 3, -1, 1))
sketch1.addConstraint(Sketcher.Constraint("Symmetric", 7, 3, 41, 3, -1, 1))
sketch1.addConstraint(Sketcher.Constraint("Symmetric", 23, 3, 57, 3, -1, 1))
sketch1.addConstraint(Sketcher.Constraint("Symmetric", 62, 3, 73, 3, -1, 1))
sketch1.addConstraint(Sketcher.Constraint("Symmetric", 66, 3, 77, 3, -1, 1))
sketch1.addConstraint(Sketcher.Constraint("Symmetric", 9, 2, 43, 2, -1, 1))
sketch1.addConstraint(Sketcher.Constraint("Symmetric", 11, 2, 45, 2, -1, 1))
sketch1.addConstraint(Sketcher.Constraint("Symmetric", 13, 2, 47, 2, -1, 1))
sketch1.addConstraint(Sketcher.Constraint("Symmetric", 15, 2, 49, 2, -1, 1))
sketch1.addConstraint(Sketcher.Constraint("Symmetric", 17, 2, 51, 2, -1, 1))
sketch1.addConstraint(Sketcher.Constraint("Symmetric", 19, 2, 53, 2, -1, 1))
sketch1.addConstraint(Sketcher.Constraint("Symmetric", 68, 2, 70, 2, -1, 1))
sketch1.addConstraint(Sketcher.Constraint("Symmetric", 23, 3, 41, 3, -2))
sketch1.addConstraint(Sketcher.Constraint("Symmetric", 30, 2, 33, 2, -2))
sketch1.addConstraint(Sketcher.Constraint("Symmetric", 25, 2, 38, 2, -2))
sketch1.addConstraint(Sketcher.Constraint("Symmetric", 20, 2, 43, 2, -2))
sketch1.addConstraint(Sketcher.Constraint("Symmetric", 18, 2, 45, 2, -2))
sketch1.addConstraint(Sketcher.Constraint("Symmetric", 16, 2, 47, 2, -2))
sketch1.addConstraint(Sketcher.Constraint("Horizontal", 66, 3, 73, 3))
sketch1.addConstraint(Sketcher.Constraint("Horizontal", 79, 3, 4, 2))
sketch1.addConstraint(Sketcher.Constraint("Horizontal", 75, 3, 24, 2))
sketch1.addConstraint(Sketcher.Constraint("Horizontal", 28, 2, 31, 2))
sketch1.addConstraint(Sketcher.Constraint("Horizontal", 5, 2, 58, 2))
sketch1.addConstraint(Sketcher.Constraint("Vertical", 4, 2, 10, 2))
sketch1.addConstraint(Sketcher.Constraint("Vertical", 11, 2, 14, 2))
sketch1.addConstraint(Sketcher.Constraint("Vertical", 43, 2, 54, 2))
sketch1.addConstraint(Sketcher.Constraint("Vertical", 29, 2, 64, 1))
sketch1.addConstraint(Sketcher.Constraint("Vertical", 35, 2, 75, 1))
sketch1.addConstraint(Sketcher.Constraint("Equal", 20, 30))
sketch1.addConstraint(Sketcher.Constraint("Equal", 52, 0))
sketch1.addConstraint(Sketcher.Constraint("Equal", 59, 9))
sketch1.addConstraint(Sketcher.Constraint("Equal", 9, 11))
sketch1.addConstraint(Sketcher.Constraint("Equal", 54, 13))
sketch1.addConstraint(Sketcher.Constraint("Equal", 32, 15))
sketch1.addConstraint(Sketcher.Constraint("Equal", 26, 29))
sketch1.addConstraint(Sketcher.Constraint("Radius", 1, 1.0))
sketch1.addConstraint(Sketcher.Constraint("Radius", 7, 0.4))
sketch1.addConstraint(Sketcher.Constraint("Radius", 60, 0.5))
sketch1.addConstraint(Sketcher.Constraint("DistanceX", 2, 2, 2, 1, 28.0))
sketch1.addConstraint(Sketcher.Constraint("DistanceX", 10, 2, 10, 1, 3.0))
sketch1.addConstraint(Sketcher.Constraint("DistanceX", 28, 1, 28, 2, 6.0))
sketch1.addConstraint(Sketcher.Constraint("DistanceX", 63, 1, 63, 2, 2.0))
sketch1.addConstraint(Sketcher.Constraint("DistanceX", 68, 1, 68, 2, 12.0))
sketch1.addConstraint(Sketcher.Constraint("DistanceY", 61, 1, 61, 2, 23.0))
sketch1.addConstraint(Sketcher.Constraint("DistanceX", 5, 1, 5, 2, 1.5))
sketch1.addConstraint(Sketcher.Constraint("DistanceX", 12, 1, 12, 2, 2.5))
sketch1.addConstraint(Sketcher.Constraint("DistanceY", 69, 2, 69, 1, 23.5))
pad1 = body.newObject("PartDesign::Pad", "Pad")
pad1.Profile = sketch1
pad1.Length = 602
pad1.Midplane = True

# Sketch on XY plane
sketch2 = body.newObject("Sketcher::SketchObject", "Sketch001")
sketch2.AttachmentSupport = (doc.getObject("XY_Plane"), [""])
sketch2.MapMode = "FlatFace"
sketch2.AttachmentOffset = App.Placement(V(0, 0, -15), App.Rotation())
sketch2.addGeometry(Part.Circle(V(281, 0, 0), V(0, 0, 1), 2.5), False)
sketch2.addGeometry(Part.Circle(V(266, 0, 0), V(0, 0, 1), 2.5), False)
sketch2.addGeometry(Part.Circle(V(-29, 0, 0), V(0, 0, 1), 2.5), False)
sketch2.addGeometry(Part.Circle(V(-14, 0, 0), V(0, 0, 1), 2.5), False)
sketch2.addGeometry(Part.Circle(V(-99, 0, 0), V(0, 0, 1), 2.5), False)
sketch2.addGeometry(Part.Circle(V(-114, 0, 0), V(0, 0, 1), 2.5), False)
sketch2.addConstraint(Sketcher.Constraint("Equal", 0, 1))
sketch2.addConstraint(Sketcher.Constraint("Equal", 1, 2))
sketch2.addConstraint(Sketcher.Constraint("Equal", 2, 3))
sketch2.addConstraint(Sketcher.Constraint("Equal", 3, 4))
sketch2.addConstraint(Sketcher.Constraint("Equal", 4, 5))
sketch2.addConstraint(Sketcher.Constraint("PointOnObject", 0, 3, -1))
sketch2.addConstraint(Sketcher.Constraint("PointOnObject", 1, 3, -1))
sketch2.addConstraint(Sketcher.Constraint("PointOnObject", 2, 3, -1))
sketch2.addConstraint(Sketcher.Constraint("PointOnObject", 3, 3, -1))
sketch2.addConstraint(Sketcher.Constraint("PointOnObject", 4, 3, -1))
sketch2.addConstraint(Sketcher.Constraint("PointOnObject", 5, 3, -1))
sketch2.addConstraint(Sketcher.Constraint("Diameter", 0, 5.0))
sketch2.addConstraint(Sketcher.Constraint("DistanceX", -1, 1, 0, 3, 281.0))
sketch2.addConstraint(Sketcher.Constraint("DistanceX", -1, 1, 1, 3, 266.0))
sketch2.addConstraint(Sketcher.Constraint("DistanceX", 2, 3, -1, 1, 29.0))
sketch2.addConstraint(Sketcher.Constraint("DistanceX", 3, 3, -1, 1, 14.0))
sketch2.addConstraint(Sketcher.Constraint("DistanceX", 4, 3, -1, 1, 99.0))
sketch2.addConstraint(Sketcher.Constraint("DistanceX", 5, 3, -1, 1, 114.0))
doc.recompute()
hole = body.newObject("PartDesign::Hole", "Hole")
hole.Profile = sketch2
hole.ThreadType = "None"
hole.Diameter = 5
hole.DepthType = "Dimension"
hole.Depth = 15
hole.DrillPoint = "Angled"
hole.DrillPointAngle = 118
hole.Reversed = True

# Sketch on XZ plane
sketch3 = body.newObject("Sketcher::SketchObject", "Sketch002")
sketch3.AttachmentSupport = (doc.getObject("XZ_Plane"), [""])
sketch3.MapMode = "FlatFace"
sketch3.AttachmentOffset = App.Placement(V(0, 0, -15), App.Rotation())
sketch3.addGeometry(Part.Circle(V(-281, 0, 0), V(0, 0, 1), 2.5), False)
sketch3.addGeometry(Part.Circle(V(-266, 0, 0), V(0, 0, 1), 2.5), False)
sketch3.addGeometry(Part.Circle(V(266, 0, 0), V(0, 0, 1), 2.5), False)
sketch3.addGeometry(Part.Circle(V(281, 0, 0), V(0, 0, 1), 2.5), False)
sketch3.addConstraint(Sketcher.Constraint("Equal", 0, 1))
sketch3.addConstraint(Sketcher.Constraint("Equal", 1, 2))
sketch3.addConstraint(Sketcher.Constraint("Equal", 2, 3))
sketch3.addConstraint(Sketcher.Constraint("Symmetric", 1, 3, 2, 3, -1, 1))
sketch3.addConstraint(Sketcher.Constraint("Symmetric", 0, 3, 3, 3, -1, 1))
sketch3.addConstraint(Sketcher.Constraint("PointOnObject", 0, 3, -1))
sketch3.addConstraint(Sketcher.Constraint("PointOnObject", 1, 3, -1))
sketch3.addConstraint(Sketcher.Constraint("Diameter", 0, 5.0))
sketch3.addConstraint(Sketcher.Constraint("DistanceX", 0, 3, -1, 1, 281.0))
sketch3.addConstraint(Sketcher.Constraint("DistanceX", 1, 3, -1, 1, 266.0))
doc.recompute()
hole2 = body.newObject("PartDesign::Hole", "Hole001")
hole2.Profile = sketch3
hole2.ThreadType = "None"
hole2.Diameter = 5
hole2.DepthType = "Dimension"
hole2.Depth = 15
hole2.DrillPoint = "Angled"
hole2.DrillPointAngle = 118
hole2.Reversed = True

# Sketch on XY plane
sketch4 = body.newObject("Sketcher::SketchObject", "Sketch003")
sketch4.AttachmentSupport = (doc.getObject("XY_Plane"), [""])
sketch4.MapMode = "FlatFace"
sketch4.AttachmentOffset = App.Placement(V(0, 0, -15), App.Rotation())
sketch4.addGeometry(Part.Circle(V(96, 0, 0), V(0, 0, 1), 1.6), False)
sketch4.addGeometry(Part.Circle(V(231, 0, 0), V(0, 0, 1), 1.6), False)
sketch4.addConstraint(Sketcher.Constraint("Equal", 0, 1))
sketch4.addConstraint(Sketcher.Constraint("PointOnObject", 0, 3, -1))
sketch4.addConstraint(Sketcher.Constraint("PointOnObject", 1, 3, -1))
sketch4.addConstraint(Sketcher.Constraint("Diameter", 0, 3.3))
sketch4.addConstraint(Sketcher.Constraint("DistanceX", -1, 1, 0, 3, 96.0))
sketch4.addConstraint(Sketcher.Constraint("DistanceX", -1, 1, 1, 3, 231.0))
doc.recompute()
hole3 = body.newObject("PartDesign::Hole", "Hole002")
hole3.Profile = sketch4
hole3.ThreadType = "None"
hole3.Diameter = 3.3
hole3.DepthType = "Dimension"
hole3.Depth = 10.1
hole3.DrillPoint = "Angled"
hole3.DrillPointAngle = 118
hole3.Reversed = True

doc.recompute()
